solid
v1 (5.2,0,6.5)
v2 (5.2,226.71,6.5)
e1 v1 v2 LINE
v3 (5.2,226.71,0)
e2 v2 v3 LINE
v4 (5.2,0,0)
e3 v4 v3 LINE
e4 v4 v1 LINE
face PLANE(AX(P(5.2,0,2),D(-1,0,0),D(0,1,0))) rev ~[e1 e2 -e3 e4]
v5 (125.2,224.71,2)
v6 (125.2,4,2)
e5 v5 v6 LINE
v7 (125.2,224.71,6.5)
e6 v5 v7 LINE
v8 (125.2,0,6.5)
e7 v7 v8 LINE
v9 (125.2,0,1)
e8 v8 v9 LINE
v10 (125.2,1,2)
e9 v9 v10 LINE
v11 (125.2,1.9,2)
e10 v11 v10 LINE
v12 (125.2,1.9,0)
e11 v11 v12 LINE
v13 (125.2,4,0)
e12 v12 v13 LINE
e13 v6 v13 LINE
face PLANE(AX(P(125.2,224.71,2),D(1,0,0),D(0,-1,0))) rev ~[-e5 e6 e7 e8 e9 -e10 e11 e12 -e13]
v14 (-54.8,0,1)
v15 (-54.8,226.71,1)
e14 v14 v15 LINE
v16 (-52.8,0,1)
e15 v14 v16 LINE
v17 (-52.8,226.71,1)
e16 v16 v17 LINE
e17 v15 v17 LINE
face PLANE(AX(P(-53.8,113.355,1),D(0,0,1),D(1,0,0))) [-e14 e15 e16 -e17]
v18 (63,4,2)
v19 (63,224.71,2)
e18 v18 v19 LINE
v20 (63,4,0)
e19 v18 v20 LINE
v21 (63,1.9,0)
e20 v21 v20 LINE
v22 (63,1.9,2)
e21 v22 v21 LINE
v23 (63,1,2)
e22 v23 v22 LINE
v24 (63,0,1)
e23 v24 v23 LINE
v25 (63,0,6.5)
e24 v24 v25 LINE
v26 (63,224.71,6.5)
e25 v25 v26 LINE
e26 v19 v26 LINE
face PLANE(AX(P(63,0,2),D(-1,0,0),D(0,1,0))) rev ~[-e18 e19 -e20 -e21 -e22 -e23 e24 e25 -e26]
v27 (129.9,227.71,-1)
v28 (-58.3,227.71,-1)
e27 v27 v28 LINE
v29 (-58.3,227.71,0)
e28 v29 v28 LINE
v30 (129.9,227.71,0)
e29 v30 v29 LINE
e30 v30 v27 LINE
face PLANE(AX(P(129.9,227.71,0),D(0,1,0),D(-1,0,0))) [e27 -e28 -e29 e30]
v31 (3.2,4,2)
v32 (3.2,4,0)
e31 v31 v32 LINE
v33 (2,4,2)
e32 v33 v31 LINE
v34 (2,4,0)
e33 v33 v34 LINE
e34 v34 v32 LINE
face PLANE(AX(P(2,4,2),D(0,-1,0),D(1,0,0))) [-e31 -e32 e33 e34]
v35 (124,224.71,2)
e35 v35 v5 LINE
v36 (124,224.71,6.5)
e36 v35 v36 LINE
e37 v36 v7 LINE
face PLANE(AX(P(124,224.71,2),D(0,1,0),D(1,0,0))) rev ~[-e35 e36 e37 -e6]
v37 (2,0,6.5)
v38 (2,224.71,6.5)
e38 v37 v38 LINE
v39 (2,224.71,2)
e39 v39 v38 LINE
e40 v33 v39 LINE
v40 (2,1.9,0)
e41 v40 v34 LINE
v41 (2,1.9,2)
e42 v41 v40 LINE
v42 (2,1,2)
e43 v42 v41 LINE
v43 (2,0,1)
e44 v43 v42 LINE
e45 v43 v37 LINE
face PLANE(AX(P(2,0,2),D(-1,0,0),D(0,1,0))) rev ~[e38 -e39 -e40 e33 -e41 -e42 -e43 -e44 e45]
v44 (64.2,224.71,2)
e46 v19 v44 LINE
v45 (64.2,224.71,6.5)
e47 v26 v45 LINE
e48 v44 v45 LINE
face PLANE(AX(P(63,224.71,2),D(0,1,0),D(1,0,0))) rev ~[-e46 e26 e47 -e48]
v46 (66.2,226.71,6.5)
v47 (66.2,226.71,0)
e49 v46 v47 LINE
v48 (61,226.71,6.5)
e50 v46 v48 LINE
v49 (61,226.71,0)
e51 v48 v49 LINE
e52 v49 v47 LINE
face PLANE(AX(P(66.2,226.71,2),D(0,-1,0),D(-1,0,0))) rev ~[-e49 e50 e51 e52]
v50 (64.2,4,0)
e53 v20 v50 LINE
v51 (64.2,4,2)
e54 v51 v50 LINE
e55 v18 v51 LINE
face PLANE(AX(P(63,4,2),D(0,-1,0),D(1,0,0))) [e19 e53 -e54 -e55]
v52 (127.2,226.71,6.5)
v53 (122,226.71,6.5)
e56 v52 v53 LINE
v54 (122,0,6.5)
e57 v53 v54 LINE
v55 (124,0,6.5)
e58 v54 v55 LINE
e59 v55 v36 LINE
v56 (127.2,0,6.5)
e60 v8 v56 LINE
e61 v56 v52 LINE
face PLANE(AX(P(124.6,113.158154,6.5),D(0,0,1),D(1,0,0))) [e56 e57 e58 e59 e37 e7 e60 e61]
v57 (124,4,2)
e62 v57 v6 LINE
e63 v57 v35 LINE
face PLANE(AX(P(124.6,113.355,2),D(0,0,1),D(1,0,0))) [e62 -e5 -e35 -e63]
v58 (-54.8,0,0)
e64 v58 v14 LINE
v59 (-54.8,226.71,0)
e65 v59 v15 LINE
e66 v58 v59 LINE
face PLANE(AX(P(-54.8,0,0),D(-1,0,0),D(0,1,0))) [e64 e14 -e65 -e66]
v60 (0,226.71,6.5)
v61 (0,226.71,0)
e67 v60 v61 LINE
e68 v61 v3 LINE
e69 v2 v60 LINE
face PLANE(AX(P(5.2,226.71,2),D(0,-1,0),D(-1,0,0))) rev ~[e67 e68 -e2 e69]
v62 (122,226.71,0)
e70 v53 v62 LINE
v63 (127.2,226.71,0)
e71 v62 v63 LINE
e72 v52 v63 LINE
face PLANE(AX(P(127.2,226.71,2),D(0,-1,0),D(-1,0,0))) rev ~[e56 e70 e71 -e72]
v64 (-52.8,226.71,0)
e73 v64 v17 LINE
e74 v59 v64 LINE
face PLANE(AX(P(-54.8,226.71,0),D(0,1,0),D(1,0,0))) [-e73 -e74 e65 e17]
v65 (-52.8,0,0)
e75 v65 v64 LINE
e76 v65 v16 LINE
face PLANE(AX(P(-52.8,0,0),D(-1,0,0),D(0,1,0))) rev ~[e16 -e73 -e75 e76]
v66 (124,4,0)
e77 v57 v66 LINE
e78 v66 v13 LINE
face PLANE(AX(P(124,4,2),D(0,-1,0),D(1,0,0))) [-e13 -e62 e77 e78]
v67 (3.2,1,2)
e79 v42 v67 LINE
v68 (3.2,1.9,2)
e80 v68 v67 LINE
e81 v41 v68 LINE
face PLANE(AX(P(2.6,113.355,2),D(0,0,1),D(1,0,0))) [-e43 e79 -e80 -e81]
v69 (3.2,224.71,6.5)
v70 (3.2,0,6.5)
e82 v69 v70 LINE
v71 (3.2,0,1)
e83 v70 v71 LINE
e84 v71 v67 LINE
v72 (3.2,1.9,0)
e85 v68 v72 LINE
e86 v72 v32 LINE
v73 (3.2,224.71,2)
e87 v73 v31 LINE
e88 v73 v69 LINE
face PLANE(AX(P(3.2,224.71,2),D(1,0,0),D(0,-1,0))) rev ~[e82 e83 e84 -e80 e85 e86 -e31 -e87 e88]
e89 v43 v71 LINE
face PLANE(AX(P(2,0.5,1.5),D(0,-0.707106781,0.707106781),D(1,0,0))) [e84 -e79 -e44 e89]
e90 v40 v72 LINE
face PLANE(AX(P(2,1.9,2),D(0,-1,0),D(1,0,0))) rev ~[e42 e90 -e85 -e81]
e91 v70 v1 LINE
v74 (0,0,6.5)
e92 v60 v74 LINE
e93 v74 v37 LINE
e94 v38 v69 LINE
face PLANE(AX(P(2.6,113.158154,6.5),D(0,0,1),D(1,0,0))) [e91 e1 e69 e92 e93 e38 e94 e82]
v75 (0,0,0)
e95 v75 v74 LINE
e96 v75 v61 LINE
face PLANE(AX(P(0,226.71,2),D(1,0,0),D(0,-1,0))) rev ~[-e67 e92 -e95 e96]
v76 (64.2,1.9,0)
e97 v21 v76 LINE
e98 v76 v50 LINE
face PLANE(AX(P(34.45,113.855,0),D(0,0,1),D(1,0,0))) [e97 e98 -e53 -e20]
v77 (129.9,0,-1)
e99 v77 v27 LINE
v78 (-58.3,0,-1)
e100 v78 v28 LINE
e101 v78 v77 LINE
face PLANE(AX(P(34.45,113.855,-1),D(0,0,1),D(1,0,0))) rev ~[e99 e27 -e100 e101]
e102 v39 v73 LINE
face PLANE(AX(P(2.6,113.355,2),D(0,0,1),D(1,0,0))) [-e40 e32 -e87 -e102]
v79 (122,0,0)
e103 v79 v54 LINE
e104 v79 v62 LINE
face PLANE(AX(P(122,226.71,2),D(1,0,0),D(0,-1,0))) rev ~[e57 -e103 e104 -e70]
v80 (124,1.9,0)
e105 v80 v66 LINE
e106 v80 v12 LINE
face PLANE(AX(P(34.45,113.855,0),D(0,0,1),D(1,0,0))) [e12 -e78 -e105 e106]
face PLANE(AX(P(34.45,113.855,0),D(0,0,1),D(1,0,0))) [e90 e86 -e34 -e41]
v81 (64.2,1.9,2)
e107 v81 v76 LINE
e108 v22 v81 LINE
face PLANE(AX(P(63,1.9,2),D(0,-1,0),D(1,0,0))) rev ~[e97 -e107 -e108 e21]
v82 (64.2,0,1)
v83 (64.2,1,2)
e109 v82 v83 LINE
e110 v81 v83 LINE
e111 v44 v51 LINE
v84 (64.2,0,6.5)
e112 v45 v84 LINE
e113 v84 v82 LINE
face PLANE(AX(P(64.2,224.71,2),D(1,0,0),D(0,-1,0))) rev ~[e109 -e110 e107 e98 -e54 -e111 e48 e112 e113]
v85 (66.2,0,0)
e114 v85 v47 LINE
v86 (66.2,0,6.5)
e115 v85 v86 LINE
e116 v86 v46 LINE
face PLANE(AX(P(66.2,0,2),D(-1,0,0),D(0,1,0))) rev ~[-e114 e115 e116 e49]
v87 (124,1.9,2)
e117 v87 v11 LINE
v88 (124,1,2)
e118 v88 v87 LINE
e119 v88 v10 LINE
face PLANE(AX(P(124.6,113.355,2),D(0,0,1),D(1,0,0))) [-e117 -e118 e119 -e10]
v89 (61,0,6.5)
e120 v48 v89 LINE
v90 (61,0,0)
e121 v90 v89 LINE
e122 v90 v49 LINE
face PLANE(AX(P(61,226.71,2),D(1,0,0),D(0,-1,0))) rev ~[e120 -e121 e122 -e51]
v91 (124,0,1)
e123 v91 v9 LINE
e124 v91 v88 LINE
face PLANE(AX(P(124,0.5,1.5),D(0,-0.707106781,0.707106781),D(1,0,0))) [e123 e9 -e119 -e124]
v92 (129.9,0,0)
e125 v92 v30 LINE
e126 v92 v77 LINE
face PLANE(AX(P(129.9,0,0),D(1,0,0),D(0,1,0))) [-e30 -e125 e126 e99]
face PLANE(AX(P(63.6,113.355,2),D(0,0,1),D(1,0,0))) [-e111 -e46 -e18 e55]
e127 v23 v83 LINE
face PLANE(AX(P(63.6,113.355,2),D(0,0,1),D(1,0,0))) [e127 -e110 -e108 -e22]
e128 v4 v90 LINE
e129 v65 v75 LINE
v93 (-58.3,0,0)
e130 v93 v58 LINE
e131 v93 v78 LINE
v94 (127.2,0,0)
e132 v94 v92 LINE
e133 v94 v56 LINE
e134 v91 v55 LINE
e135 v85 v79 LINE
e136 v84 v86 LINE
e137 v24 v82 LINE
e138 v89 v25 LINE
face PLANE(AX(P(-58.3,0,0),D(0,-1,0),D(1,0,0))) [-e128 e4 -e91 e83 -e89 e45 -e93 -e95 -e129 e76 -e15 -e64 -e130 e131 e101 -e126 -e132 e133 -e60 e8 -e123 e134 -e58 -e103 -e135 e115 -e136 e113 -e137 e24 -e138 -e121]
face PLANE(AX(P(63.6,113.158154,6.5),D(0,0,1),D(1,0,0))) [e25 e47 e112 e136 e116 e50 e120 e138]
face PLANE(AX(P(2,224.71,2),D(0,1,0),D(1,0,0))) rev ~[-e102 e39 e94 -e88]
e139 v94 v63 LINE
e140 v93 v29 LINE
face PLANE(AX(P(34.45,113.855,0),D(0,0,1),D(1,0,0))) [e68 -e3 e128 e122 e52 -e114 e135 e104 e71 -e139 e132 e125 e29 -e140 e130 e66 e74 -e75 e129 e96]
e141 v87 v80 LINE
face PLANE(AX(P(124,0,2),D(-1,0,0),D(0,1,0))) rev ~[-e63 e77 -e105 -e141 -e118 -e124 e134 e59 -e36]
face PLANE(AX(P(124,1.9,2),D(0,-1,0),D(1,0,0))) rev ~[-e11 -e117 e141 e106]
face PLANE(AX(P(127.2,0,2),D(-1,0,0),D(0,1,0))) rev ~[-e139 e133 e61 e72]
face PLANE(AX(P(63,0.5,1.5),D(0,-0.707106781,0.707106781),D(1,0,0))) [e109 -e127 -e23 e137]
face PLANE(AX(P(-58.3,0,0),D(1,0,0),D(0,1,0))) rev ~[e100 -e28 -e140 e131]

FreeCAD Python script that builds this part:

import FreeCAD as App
import Part
import Sketcher
from FreeCAD import Vector


def edges_at(feature, points):
    """Names of the edges that pass closest to the given points."""
    edges = feature.Shape.Edges
    near = lambda p: min(range(len(edges)), key=lambda i: edges[i].distToShape(Part.Vertex(*p))[0])
    return sorted({f"Edge{near(p) + 1}" for p in points})


def add_polygon(sketch, points):
    """Adds a closed chain of lines whose ends are joined by coincident constraints."""
    first, n = sketch.GeometryCount, len(points)
    for a, b in zip(points, points[1:] + points[:1]):
        sketch.addGeometry(Part.LineSegment(App.Vector(*a, 0), App.Vector(*b, 0)), False)
    for i in range(n):
        sketch.addConstraint(Sketcher.Constraint("Coincident", first + i, 2, first + (i + 1) % n, 1))

doc = App.newDocument("Part")
body = doc.addObject("PartDesign::Body", "Body")
body.AllowCompound = True

sketch1 = doc.addObject("Sketcher::SketchObject", "Sketch")
body.addObject(sketch1)
sketch1.AttachmentSupport = (doc.XY_Plane, [""])
sketch1.MapMode = "FlatFace"
add_polygon(sketch1, [(0, 227), (0, 0), (5, 0), (5, 227)])
add_polygon(sketch1, [(61, 227), (61, 0), (66, 0), (66, 227)])
add_polygon(sketch1, [(122, 227), (122, 0), (127, 0), (127, 227)])
sketch1.addConstraint(Sketcher.Constraint("Vertical", 0))
sketch1.addConstraint(Sketcher.Constraint("Horizontal", 1))
sketch1.addConstraint(Sketcher.Constraint("Vertical", 2))
sketch1.addConstraint(Sketcher.Constraint("Horizontal", 3))
sketch1.addConstraint(Sketcher.Constraint("Vertical", 4))
sketch1.addConstraint(Sketcher.Constraint("Horizontal", 5))
sketch1.addConstraint(Sketcher.Constraint("Vertical", 6))
sketch1.addConstraint(Sketcher.Constraint("Horizontal", 7))
sketch1.addConstraint(Sketcher.Constraint("Vertical", 8))
sketch1.addConstraint(Sketcher.Constraint("Horizontal", 9))
sketch1.addConstraint(Sketcher.Constraint("Vertical", 10))
sketch1.addConstraint(Sketcher.Constraint("Horizontal", 11))
sketch1.addConstraint(Sketcher.Constraint("Coincident", 0, 2, -1, 1))
sketch1.addConstraint(Sketcher.Constraint("PointOnObject", 4, 2, -1))
sketch1.addConstraint(Sketcher.Constraint("PointOnObject", 8, 2, -1))
sketch1.addConstraint(Sketcher.Constraint("Horizontal", 3, 2, 6, 2))
sketch1.addConstraint(Sketcher.Constraint("Horizontal", 7, 2, 10, 2))
sketch1.addConstraint(Sketcher.Constraint("Equal", 3, 5))
sketch1.addConstraint(Sketcher.Constraint("Equal", 7, 9))
sketch1.addConstraint(Sketcher.Constraint("DistanceX", 1, 1, 1, 2, 5.2))
sketch1.addConstraint(Sketcher.Constraint("DistanceX", -1, 1, 4, 2, 61.0))
sketch1.addConstraint(Sketcher.Constraint("DistanceX", -1, 1, 8, 2, 122.0))
sketch1.addConstraint(Sketcher.Constraint("DistanceY", 0, 2, 0, 1, 226.71))
pad1 = doc.addObject("PartDesign::Pad", "Pad")
body.addObject(pad1)
pad1.Profile = sketch1
pad1.Length = 2

sketch2 = doc.addObject("Sketcher::SketchObject", "Sketch001")
body.addObject(sketch2)
sketch2.AttachmentSupport = (doc.XY_Plane, [""])
sketch2.MapMode = "FlatFace"
sketch2.AttachmentOffset = App.Placement(Vector(0, 0, 2), App.Rotation())
add_polygon(sketch2, [(0, 226.7), (0, 0), (2, 0), (2, 224.7), (3.2, 224.7), (3.2, 0), (5.2, 0), (5.2, 226.7)])
add_polygon(sketch2, [(61, 226.7), (61, 0), (63, 0), (63, 224.7), (64.2, 224.7), (64.2, 0), (66.2, 0), (66.2, 226.7)])
add_polygon(sketch2, [(122, 226.7), (122, 0), (124, 0), (124, 224.7), (125.2, 224.7), (125.2, 0), (127.2, 0), (127.2, 226.7)])
sketch2.addConstraint(Sketcher.Constraint("Vertical", 0))
sketch2.addConstraint(Sketcher.Constraint("Horizontal", 1))
sketch2.addConstraint(Sketcher.Constraint("Vertical", 2))
sketch2.addConstraint(Sketcher.Constraint("Horizontal", 3))
sketch2.addConstraint(Sketcher.Constraint("Vertical", 4))
sketch2.addConstraint(Sketcher.Constraint("Horizontal", 5))
sketch2.addConstraint(Sketcher.Constraint("Vertical", 6))
sketch2.addConstraint(Sketcher.Constraint("Horizontal", 7))
sketch2.addConstraint(Sketcher.Constraint("Vertical", 8))
sketch2.addConstraint(Sketcher.Constraint("Horizontal", 9))
sketch2.addConstraint(Sketcher.Constraint("Vertical", 10))
sketch2.addConstraint(Sketcher.Constraint("Horizontal", 11))
sketch2.addConstraint(Sketcher.Constraint("Vertical", 12))
sketch2.addConstraint(Sketcher.Constraint("Horizontal", 13))
sketch2.addConstraint(Sketcher.Constraint("Vertical", 14))
sketch2.addConstraint(Sketcher.Constraint("Horizontal", 15))
sketch2.addConstraint(Sketcher.Constraint("Vertical", 16))
sketch2.addConstraint(Sketcher.Constraint("Horizontal", 17))
sketch2.addConstraint(Sketcher.Constraint("Vertical", 18))
sketch2.addConstraint(Sketcher.Constraint("Horizontal", 19))
sketch2.addConstraint(Sketcher.Constraint("Vertical", 20))
sketch2.addConstraint(Sketcher.Constraint("Horizontal", 21))
sketch2.addConstraint(Sketcher.Constraint("Vertical", 22))
sketch2.addConstraint(Sketcher.Constraint("Horizontal", 23))
sketch2.addConstraint(Sketcher.Constraint("Coincident", 0, 2, -1, 1))
sketch2.addConstraint(Sketcher.Constraint("PointOnObject", 4, 2, -1))
sketch2.addConstraint(Sketcher.Constraint("PointOnObject", 8, 2, -1))
sketch2.addConstraint(Sketcher.Constraint("PointOnObject", 12, 2, -1))
sketch2.addConstraint(Sketcher.Constraint("PointOnObject", 16, 2, -1))
sketch2.addConstraint(Sketcher.Constraint("PointOnObject", 20, 2, -1))
sketch2.addConstraint(Sketcher.Constraint("Horizontal", 3, 2, 10, 2))
sketch2.addConstraint(Sketcher.Constraint("Horizontal", 7, 2, 14, 2))
sketch2.addConstraint(Sketcher.Constraint("Horizontal", 11, 2, 18, 2))
sketch2.addConstraint(Sketcher.Constraint("Horizontal", 15, 2, 22, 2))
sketch2.addConstraint(Sketcher.Constraint("Equal", 1, 5))
sketch2.addConstraint(Sketcher.Constraint("Equal", 5, 9))
sketch2.addConstraint(Sketcher.Constraint("Equal", 3, 11))
sketch2.addConstraint(Sketcher.Constraint("Equal", 9, 13))
sketch2.addConstraint(Sketcher.Constraint("Equal", 13, 17))
sketch2.addConstraint(Sketcher.Constraint("Equal", 11, 19))
sketch2.addConstraint(Sketcher.Constraint("Equal", 17, 21))
sketch2.addConstraint(Sketcher.Constraint("DistanceX", 1, 1, 1, 2, 2.0))
sketch2.addConstraint(Sketcher.Constraint("DistanceX", 3, 1, 3, 2, 1.2))
sketch2.addConstraint(Sketcher.Constraint("DistanceX", -1, 1, 8, 2, 61.0))
sketch2.addConstraint(Sketcher.Constraint("DistanceX", -1, 1, 16, 2, 122.0))
sketch2.addConstraint(Sketcher.Constraint("DistanceY", 3, 2, 6, 2, 2.0))
sketch2.addConstraint(Sketcher.Constraint("DistanceY", 0, 2, 0, 1, 226.71))
pad2 = doc.addObject("PartDesign::Pad", "Pad001")
body.addObject(pad2)
pad2.Profile = sketch2
pad2.Length = 4.5

sketch3 = doc.addObject("Sketcher::SketchObject", "Sketch002")
body.addObject(sketch3)
sketch3.AttachmentSupport = (doc.XY_Plane, [""])
sketch3.MapMode = "FlatFace"
sketch3.AttachmentOffset = App.Placement(Vector(0, 0, 2), App.Rotation())
add_polygon(sketch3, [(2, 4), (2, 1.9), (3.2, 1.9), (3.2, 4)])
add_polygon(sketch3, [(63, 4), (63, 1.9), (64.2, 1.9), (64.2, 4)])
add_polygon(sketch3, [(124, 4), (124, 1.9), (125.2, 1.9), (125.2, 4)])
sketch3.addConstraint(Sketcher.Constraint("Vertical", 0))
sketch3.addConstraint(Sketcher.Constraint("Horizontal", 1))
sketch3.addConstraint(Sketcher.Constraint("Vertical", 2))
sketch3.addConstraint(Sketcher.Constraint("Horizontal", 3))
sketch3.addConstraint(Sketcher.Constraint("Vertical", 4))
sketch3.addConstraint(Sketcher.Constraint("Horizontal", 5))
sketch3.addConstraint(Sketcher.Constraint("Vertical", 6))
sketch3.addConstraint(Sketcher.Constraint("Horizontal", 7))
sketch3.addConstraint(Sketcher.Constraint("Vertical", 8))
sketch3.addConstraint(Sketcher.Constraint("Horizontal", 9))
sketch3.addConstraint(Sketcher.Constraint("Vertical", 10))
sketch3.addConstraint(Sketcher.Constraint("Horizontal", 11))
sketch3.addConstraint(Sketcher.Constraint("Horizontal", 1, 2, 4, 2))
sketch3.addConstraint(Sketcher.Constraint("Horizontal", 3, 2, 6, 2))
sketch3.addConstraint(Sketcher.Constraint("Horizontal", 5, 2, 8, 2))
sketch3.addConstraint(Sketcher.Constraint("Horizontal", 7, 2, 10, 2))
sketch3.addConstraint(Sketcher.Constraint("Equal", 3, 5))
sketch3.addConstraint(Sketcher.Constraint("Equal", 7, 9))
sketch3.addConstraint(Sketcher.Constraint("DistanceX", 1, 1, 1, 2, 1.2))
sketch3.addConstraint(Sketcher.Constraint("DistanceY", 0, 2, 0, 1, 2.1))
sketch3.addConstraint(Sketcher.Constraint("DistanceX", -1, 1, 0, 2, 2.0))
sketch3.addConstraint(Sketcher.Constraint("DistanceY", -1, 1, 2, 2, 4.0))
sketch3.addConstraint(Sketcher.Constraint("DistanceX", -1, 1, 4, 2, 63.0))
sketch3.addConstraint(Sketcher.Constraint("DistanceX", -1, 1, 8, 2, 124.0))
pocket1 = doc.addObject("PartDesign::Pocket", "Pocket")
body.addObject(pocket1)
pocket1.Profile = sketch3
pocket1.Length = 25

sketch4 = doc.addObject("Sketcher::SketchObject", "Sketch003")
body.addObject(sketch4)
sketch4.AttachmentSupport = (doc.XY_Plane, [""])
sketch4.MapMode = "FlatFace"
add_polygon(sketch4, [(-58, 228), (-58, 0), (130, 0), (130, 228)])
sketch4.addConstraint(Sketcher.Constraint("Vertical", 0))
sketch4.addConstraint(Sketcher.Constraint("Horizontal", 1))
sketch4.addConstraint(Sketcher.Constraint("Vertical", 2))
sketch4.addConstraint(Sketcher.Constraint("Horizontal", 3))
sketch4.addConstraint(Sketcher.Constraint("PointOnObject", 0, 2, -1))
sketch4.addConstraint(Sketcher.Constraint("DistanceX", 1, 1, 1, 2, 188.2))
sketch4.addConstraint(Sketcher.Constraint("DistanceY", 0, 2, 0, 1, 227.71))
sketch4.addConstraint(Sketcher.Constraint("DistanceX", 0, 2, -1, 1, 58.3))
pad3 = doc.addObject("PartDesign::Pad", "Pad002")
body.addObject(pad3)
pad3.Profile = sketch4
pad3.Length = 1
pad3.Reversed = True

sketch5 = doc.addObject("Sketcher::SketchObject", "Sketch004")
body.addObject(sketch5)
sketch5.AttachmentSupport = (doc.XY_Plane, [""])
sketch5.MapMode = "FlatFace"
add_polygon(sketch5, [(-54.8, 226.7), (-54.8, 0), (-52.8, 0), (-52.8, 226.7)])
sketch5.addConstraint(Sketcher.Constraint("Vertical", 0))
sketch5.addConstraint(Sketcher.Constraint("Horizontal", 1))
sketch5.addConstraint(Sketcher.Constraint("Vertical", 2))
sketch5.addConstraint(Sketcher.Constraint("Horizontal", 3))
sketch5.addConstraint(Sketcher.Constraint("PointOnObject", 0, 2, -1))
sketch5.addConstraint(Sketcher.Constraint("DistanceX", 1, 1, 1, 2, 2.0))
sketch5.addConstraint(Sketcher.Constraint("DistanceY", 0, 2, 0, 1, 226.71))
sketch5.addConstraint(Sketcher.Constraint("DistanceX", 0, 2, -1, 1, 54.8))
pad4 = doc.addObject("PartDesign::Pad", "Pad003")
body.addObject(pad4)
pad4.Profile = sketch5
pad4.Length = 1
doc.recompute()

chamfer = doc.addObject("PartDesign::Chamfer", "Chamfer")
body.addObject(chamfer)
chamfer.Base = (pad4, edges_at(pad4, [(2.6, 0, 2), (63.6, 0, 2), (124.6, 0, 2)]))
chamfer.Size = 1

doc.recompute()
